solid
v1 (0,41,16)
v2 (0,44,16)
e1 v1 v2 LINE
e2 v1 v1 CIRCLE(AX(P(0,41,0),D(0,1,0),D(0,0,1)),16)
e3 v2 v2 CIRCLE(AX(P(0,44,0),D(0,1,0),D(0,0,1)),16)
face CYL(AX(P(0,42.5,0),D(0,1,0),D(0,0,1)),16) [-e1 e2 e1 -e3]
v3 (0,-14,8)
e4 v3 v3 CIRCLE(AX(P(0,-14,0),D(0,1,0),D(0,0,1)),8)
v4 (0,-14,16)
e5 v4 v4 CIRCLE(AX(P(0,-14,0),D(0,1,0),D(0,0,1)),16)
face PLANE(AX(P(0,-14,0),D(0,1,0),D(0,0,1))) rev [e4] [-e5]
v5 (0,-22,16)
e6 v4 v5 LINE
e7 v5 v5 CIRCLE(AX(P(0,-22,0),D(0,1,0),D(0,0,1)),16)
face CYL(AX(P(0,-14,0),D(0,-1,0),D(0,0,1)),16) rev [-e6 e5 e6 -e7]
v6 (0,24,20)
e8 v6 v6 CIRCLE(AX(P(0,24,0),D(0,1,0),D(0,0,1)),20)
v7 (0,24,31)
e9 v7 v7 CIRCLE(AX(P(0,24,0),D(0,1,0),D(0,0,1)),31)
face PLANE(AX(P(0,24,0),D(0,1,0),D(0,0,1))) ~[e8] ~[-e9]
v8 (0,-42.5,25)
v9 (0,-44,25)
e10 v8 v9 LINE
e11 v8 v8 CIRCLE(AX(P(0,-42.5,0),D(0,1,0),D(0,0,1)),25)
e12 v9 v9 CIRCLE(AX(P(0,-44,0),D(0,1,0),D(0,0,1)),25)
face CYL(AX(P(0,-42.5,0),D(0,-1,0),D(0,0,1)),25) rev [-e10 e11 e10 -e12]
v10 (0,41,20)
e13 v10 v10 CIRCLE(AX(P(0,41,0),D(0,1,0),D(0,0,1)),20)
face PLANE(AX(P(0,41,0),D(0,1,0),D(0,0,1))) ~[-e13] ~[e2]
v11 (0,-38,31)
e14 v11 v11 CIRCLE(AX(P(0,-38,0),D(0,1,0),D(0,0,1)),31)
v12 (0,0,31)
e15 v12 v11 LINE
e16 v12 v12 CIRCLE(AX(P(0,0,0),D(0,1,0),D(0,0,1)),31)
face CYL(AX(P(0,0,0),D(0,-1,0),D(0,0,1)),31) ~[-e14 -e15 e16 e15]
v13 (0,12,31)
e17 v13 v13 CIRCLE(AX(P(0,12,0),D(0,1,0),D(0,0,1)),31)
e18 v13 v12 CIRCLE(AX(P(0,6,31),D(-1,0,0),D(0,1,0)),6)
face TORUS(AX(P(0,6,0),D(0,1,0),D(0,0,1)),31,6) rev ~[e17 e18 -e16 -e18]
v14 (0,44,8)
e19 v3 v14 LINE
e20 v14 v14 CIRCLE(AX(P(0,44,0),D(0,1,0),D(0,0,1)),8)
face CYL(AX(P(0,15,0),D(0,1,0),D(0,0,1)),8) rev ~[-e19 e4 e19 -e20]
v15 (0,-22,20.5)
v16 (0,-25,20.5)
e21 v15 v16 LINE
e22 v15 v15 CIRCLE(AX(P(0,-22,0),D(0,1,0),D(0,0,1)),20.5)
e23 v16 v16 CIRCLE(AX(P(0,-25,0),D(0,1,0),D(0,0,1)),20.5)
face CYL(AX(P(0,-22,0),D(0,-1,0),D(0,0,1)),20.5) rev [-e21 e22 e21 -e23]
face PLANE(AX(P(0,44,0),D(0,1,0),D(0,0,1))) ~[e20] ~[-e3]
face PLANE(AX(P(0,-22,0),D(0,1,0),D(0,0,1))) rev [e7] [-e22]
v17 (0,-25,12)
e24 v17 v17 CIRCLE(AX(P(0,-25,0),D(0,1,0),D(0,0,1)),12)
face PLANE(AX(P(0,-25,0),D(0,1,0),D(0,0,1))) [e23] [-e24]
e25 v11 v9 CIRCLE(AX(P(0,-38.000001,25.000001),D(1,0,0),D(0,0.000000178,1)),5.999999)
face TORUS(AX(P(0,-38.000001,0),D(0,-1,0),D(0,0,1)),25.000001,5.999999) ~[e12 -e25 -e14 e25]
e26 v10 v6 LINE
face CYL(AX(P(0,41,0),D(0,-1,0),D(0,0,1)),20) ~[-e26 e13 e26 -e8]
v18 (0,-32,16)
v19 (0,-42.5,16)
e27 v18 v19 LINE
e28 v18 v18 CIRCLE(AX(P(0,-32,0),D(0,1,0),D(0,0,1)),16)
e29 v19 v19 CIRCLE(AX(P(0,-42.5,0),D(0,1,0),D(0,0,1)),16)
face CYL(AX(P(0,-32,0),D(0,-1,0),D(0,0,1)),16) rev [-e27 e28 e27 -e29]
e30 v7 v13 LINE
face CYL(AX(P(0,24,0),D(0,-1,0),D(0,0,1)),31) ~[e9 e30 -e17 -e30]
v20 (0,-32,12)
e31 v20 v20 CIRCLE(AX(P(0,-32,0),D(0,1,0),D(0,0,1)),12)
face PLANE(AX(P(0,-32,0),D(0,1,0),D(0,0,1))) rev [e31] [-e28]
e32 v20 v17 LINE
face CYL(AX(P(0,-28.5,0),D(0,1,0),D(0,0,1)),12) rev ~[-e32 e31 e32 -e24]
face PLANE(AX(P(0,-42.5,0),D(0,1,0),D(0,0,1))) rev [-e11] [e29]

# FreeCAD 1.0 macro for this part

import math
import FreeCAD as App
import Part
import Sketcher
Q = App.Units.Quantity

doc = App.newDocument("Part")
params = doc.addObject("Spreadsheet::Sheet", "Params")
for row, (alias, value) in enumerate([
    ("sketch1_radius", "6 mm"),
    ("sketch1_width", "88 mm"),
    ("sketch1_width2", "3 mm"),
    ("sketch1_width3", "17 mm"),
    ("sketch1_height", "16 mm"),
    ("revolution_angle", "360 deg"),
    ("sketch2_width", "88 mm"),
    ("sketch2_width2", "58 mm"),
    ("sketch2_width3", "8 mm"),
    ("sketch2_width4", "3 mm"),
    ("sketch2_width5", "7 mm"),
    ("groove_angle", "360 deg"),
], start=1):
    params.set(f"A{row}", alias)
    params.set(f"B{row}", "=" + value)
    params.setAlias(f"B{row}", alias)

body = doc.addObject("PartDesign::Body", "Body")

# Sketch on YZ plane
sketch1 = body.newObject("Sketcher::SketchObject", "Sketch")
sketch1.AttachmentSupport = (doc.getObject("YZ_Plane"), [""])
sketch1.MapMode = "FlatFace"
sketch1.addGeometry([
    Part.LineSegment(App.Vector(-44, 0, 0), App.Vector(44, 0, 0)),  # 0
    Part.LineSegment(App.Vector(44, 0, 0), App.Vector(44, 16, 0)),  # 1
    Part.LineSegment(App.Vector(44, 16, 0), App.Vector(41, 16, 0)),  # 2
    Part.LineSegment(App.Vector(41, 16, 0), App.Vector(41, 20, 0)),  # 3
    Part.LineSegment(App.Vector(41, 20, 0), App.Vector(24, 20, 0)),  # 4
    Part.LineSegment(App.Vector(24, 20, 0), App.Vector(24, 31, 0)),  # 5
    Part.LineSegment(App.Vector(24, 31, 0), App.Vector(12, 31, 0)),  # 6
    Part.ArcOfCircle(Part.Circle(App.Vector(6, 31, 0), App.Vector(0, 0, 1), 6), math.radians(180), math.radians(360)),  # 7
    Part.LineSegment(App.Vector(0, 31, 0), App.Vector(-38, 31, 0)),  # 8
    Part.ArcOfCircle(Part.Circle(App.Vector(-38.000001, 25.000001, 0), App.Vector(0, 0, 1), 5.999999), math.radians(89.99999), math.radians(180.00001)),  # 9
    Part.LineSegment(App.Vector(-44, 25, 0), App.Vector(-44, 0, 0)),  # 10
], False)
sketch1.addConstraint([
    Sketcher.Constraint("Coincident", 0, 2, 1, 1),
    Sketcher.Constraint("Coincident", 1, 2, 2, 1),
    Sketcher.Constraint("Coincident", 2, 2, 3, 1),
    Sketcher.Constraint("Coincident", 3, 2, 4, 1),
    Sketcher.Constraint("Coincident", 4, 2, 5, 1),
    Sketcher.Constraint("Coincident", 5, 2, 6, 1),
    Sketcher.Constraint("Coincident", 6, 2, 7, 2),
    Sketcher.Constraint("Coincident", 7, 1, 8, 1),
    Sketcher.Constraint("Tangent", 8, 2, 9, 1),
    Sketcher.Constraint("Tangent", 9, 2, 10, 1),
    Sketcher.Constraint("Coincident", 10, 2, 0, 1),
    Sketcher.Constraint("Horizontal", 0),
    Sketcher.Constraint("Vertical", 1),
    Sketcher.Constraint("Horizontal", 2),
    Sketcher.Constraint("Vertical", 3),
    Sketcher.Constraint("Horizontal", 4),
    Sketcher.Constraint("Vertical", 5),
    Sketcher.Constraint("Horizontal", 6),
    Sketcher.Constraint("Horizontal", 8),
    Sketcher.Constraint("Vertical", 10),
    Sketcher.Constraint("Equal", 7, 9),
    Sketcher.Constraint("Symmetric", 0, 2, 10, 2, -1, 1),
    Sketcher.Constraint("PointOnObject", 7, 1, -2),
    Sketcher.Constraint("Horizontal", 7, 3, 5, 2),
    Sketcher.Constraint("Horizontal", 6, 2, 7, 1),
    Sketcher.Constraint("Radius", 7, Q("6 mm")),
    Sketcher.Constraint("DistanceX", 0, 1, 0, 2, Q("88 mm")),
    Sketcher.Constraint("DistanceX", 2, 2, 2, 1, Q("3 mm")),
    Sketcher.Constraint("DistanceX", 4, 2, 4, 1, Q("17 mm")),
    Sketcher.Constraint("DistanceY", 1, 1, 1, 2, Q("16 mm")),
    Sketcher.Constraint("DistanceY", 3, 1, 3, 2, Q("4 mm")),
    Sketcher.Constraint("DistanceY", 5, 1, 5, 2, Q("11 mm")),
])
sketch1.setExpression("Constraints[25]", "Params.sketch1_radius")
sketch1.setExpression("Constraints[26]", "Params.sketch1_width")
sketch1.setExpression("Constraints[27]", "Params.sketch1_width2")
sketch1.setExpression("Constraints[28]", "Params.sketch1_width3")
sketch1.setExpression("Constraints[29]", "Params.sketch1_height")
revolution = body.newObject("PartDesign::Revolution", "Revolution")
revolution.Profile = sketch1
revolution.ReferenceAxis = (sketch1, ["H_Axis"])
revolution.setExpression("Angle", "Params.revolution_angle")

# Sketch on YZ plane
sketch2 = body.newObject("Sketcher::SketchObject", "Sketch001")
sketch2.AttachmentSupport = (doc.getObject("YZ_Plane"), [""])
sketch2.MapMode = "FlatFace"
sketch2.addGeometry([
    Part.LineSegment(App.Vector(-42.5, 25, 0), App.Vector(-44, 25, 0)),  # 0
    Part.LineSegment(App.Vector(-44, 25, 0), App.Vector(-44, 0, 0)),  # 1
    Part.LineSegment(App.Vector(-44, 0, 0), App.Vector(44, 0, 0)),  # 2
    Part.LineSegment(App.Vector(44, 0, 0), App.Vector(44, 8, 0)),  # 3
    Part.LineSegment(App.Vector(44, 8, 0), App.Vector(-14, 8, 0)),  # 4
    Part.LineSegment(App.Vector(-14, 8, 0), App.Vector(-14, 16, 0)),  # 5
    Part.LineSegment(App.Vector(-14, 16, 0), App.Vector(-22, 16, 0)),  # 6
    Part.LineSegment(App.Vector(-22, 16, 0), App.Vector(-22, 20.5, 0)),  # 7
    Part.LineSegment(App.Vector(-22, 20.5, 0), App.Vector(-25, 20.5, 0)),  # 8
    Part.LineSegment(App.Vector(-25, 20.5, 0), App.Vector(-25, 12, 0)),  # 9
    Part.LineSegment(App.Vector(-25, 12, 0), App.Vector(-32, 12, 0)),  # 10
    Part.LineSegment(App.Vector(-32, 12, 0), App.Vector(-32, 16, 0)),  # 11
    Part.LineSegment(App.Vector(-32, 16, 0), App.Vector(-42.5, 16, 0)),  # 12
    Part.LineSegment(App.Vector(-42.5, 16, 0), App.Vector(-42.5, 25, 0)),  # 13
], False)
sketch2.addConstraint([
    Sketcher.Constraint("Coincident", 0, 2, 1, 1),
    Sketcher.Constraint("Coincident", 1, 2, 2, 1),
    Sketcher.Constraint("Coincident", 2, 2, 3, 1),
    Sketcher.Constraint("Coincident", 3, 2, 4, 1),
    Sketcher.Constraint("Coincident", 4, 2, 5, 1),
    Sketcher.Constraint("Coincident", 5, 2, 6, 1),
    Sketcher.Constraint("Coincident", 6, 2, 7, 1),
    Sketcher.Constraint("Coincident", 7, 2, 8, 1),
    Sketcher.Constraint("Coincident", 8, 2, 9, 1),
    Sketcher.Constraint("Coincident", 9, 2, 10, 1),
    Sketcher.Constraint("Coincident", 10, 2, 11, 1),
    Sketcher.Constraint("Coincident", 11, 2, 12, 1),
    Sketcher.Constraint("Coincident", 12, 2, 13, 1),
    Sketcher.Constraint("Coincident", 13, 2, 0, 1),
    Sketcher.Constraint("Horizontal", 0),
    Sketcher.Constraint("Vertical", 1),
    Sketcher.Constraint("Horizontal", 2),
    Sketcher.Constraint("Vertical", 3),
    Sketcher.Constraint("Horizontal", 4),
    Sketcher.Constraint("Vertical", 5),
    Sketcher.Constraint("Horizontal", 6),
    Sketcher.Constraint("Vertical", 7),
    Sketcher.Constraint("Horizontal", 8),
    Sketcher.Constraint("Vertical", 9),
    Sketcher.Constraint("Horizontal", 10),
    Sketcher.Constraint("Vertical", 11),
    Sketcher.Constraint("Horizontal", 12),
    Sketcher.Constraint("Vertical", 13),
    Sketcher.Constraint("Symmetric", 1, 2, 2, 2, -1, 1),
    Sketcher.Constraint("Horizontal", 6, 2, 11, 2),
    Sketcher.Constraint("Equal", 6, 3),
    Sketcher.Constraint("Equal", 3, 5),
    Sketcher.Constraint("DistanceX", 2, 1, 2, 2, Q("88 mm")),
    Sketcher.Constraint("DistanceX", 4, 2, 4, 1, Q("58 mm")),
    Sketcher.Constraint("DistanceX", 6, 2, 6, 1, Q("8 mm")),
    Sketcher.Constraint("DistanceX", 8, 2, 8, 1, Q("3 mm")),
    Sketcher.Constraint("DistanceX", 10, 2, 10, 1, Q("7 mm")),
    Sketcher.Constraint("DistanceY", 1, 2, 1, 1, Q("25 mm")),
    Sketcher.Constraint("DistanceY", 11, 1, 11, 2, Q("4 mm")),
    Sketcher.Constraint("DistanceX", 0, 2, 0, 1, Q("1.5 mm")),
    Sketcher.Constraint("DistanceY", 7, 1, 7, 2, Q("4.5 mm")),
])
sketch2.setExpression("Constraints[32]", "Params.sketch2_width")
sketch2.setExpression("Constraints[33]", "Params.sketch2_width2")
sketch2.setExpression("Constraints[34]", "Params.sketch2_width3")
sketch2.setExpression("Constraints[35]", "Params.sketch2_width4")
sketch2.setExpression("Constraints[36]", "Params.sketch2_width5")
groove = body.newObject("PartDesign::Groove", "Groove")
groove.Profile = sketch2
groove.ReferenceAxis = (sketch2, ["H_Axis"])
groove.setExpression("Angle", "Params.groove_angle")

doc.recompute()
